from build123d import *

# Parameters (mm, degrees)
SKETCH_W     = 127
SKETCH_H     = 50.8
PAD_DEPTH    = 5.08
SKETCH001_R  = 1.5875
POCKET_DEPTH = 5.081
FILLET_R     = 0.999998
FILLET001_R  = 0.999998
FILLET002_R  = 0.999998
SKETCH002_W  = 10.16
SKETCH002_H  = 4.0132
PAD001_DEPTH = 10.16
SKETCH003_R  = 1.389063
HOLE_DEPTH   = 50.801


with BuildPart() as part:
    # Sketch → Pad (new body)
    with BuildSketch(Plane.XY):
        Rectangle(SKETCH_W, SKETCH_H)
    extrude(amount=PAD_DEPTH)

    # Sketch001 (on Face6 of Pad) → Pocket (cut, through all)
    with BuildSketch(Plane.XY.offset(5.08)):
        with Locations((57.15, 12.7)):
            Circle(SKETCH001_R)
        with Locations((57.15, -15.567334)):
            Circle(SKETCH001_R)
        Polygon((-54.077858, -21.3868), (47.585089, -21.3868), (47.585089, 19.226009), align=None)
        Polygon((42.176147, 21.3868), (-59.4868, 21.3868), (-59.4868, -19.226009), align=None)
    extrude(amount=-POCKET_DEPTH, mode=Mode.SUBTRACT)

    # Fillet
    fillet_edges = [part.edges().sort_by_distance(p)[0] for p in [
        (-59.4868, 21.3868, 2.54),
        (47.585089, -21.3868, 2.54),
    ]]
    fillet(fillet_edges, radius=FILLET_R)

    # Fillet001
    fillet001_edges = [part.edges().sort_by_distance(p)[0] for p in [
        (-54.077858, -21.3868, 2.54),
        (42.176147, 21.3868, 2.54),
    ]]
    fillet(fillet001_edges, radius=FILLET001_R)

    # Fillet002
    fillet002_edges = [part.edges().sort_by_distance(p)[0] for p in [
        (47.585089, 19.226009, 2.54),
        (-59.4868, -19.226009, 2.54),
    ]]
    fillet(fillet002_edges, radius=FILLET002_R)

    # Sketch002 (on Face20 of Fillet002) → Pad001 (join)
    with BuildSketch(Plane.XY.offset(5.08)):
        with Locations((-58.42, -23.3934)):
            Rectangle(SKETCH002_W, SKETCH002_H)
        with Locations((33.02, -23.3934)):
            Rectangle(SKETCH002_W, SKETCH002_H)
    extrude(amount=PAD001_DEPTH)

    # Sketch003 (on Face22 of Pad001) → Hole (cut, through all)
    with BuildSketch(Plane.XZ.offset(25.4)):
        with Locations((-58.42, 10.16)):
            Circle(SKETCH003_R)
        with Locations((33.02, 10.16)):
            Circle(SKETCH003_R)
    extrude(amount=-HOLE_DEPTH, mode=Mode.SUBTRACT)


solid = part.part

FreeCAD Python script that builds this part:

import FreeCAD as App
import Part
import Sketcher

V = App.Vector
Q = App.Units.Quantity


def edges_at(feature, points):
    """Names of the edges that pass closest to the given points."""
    edges = feature.Shape.Edges
    near = lambda p: min(range(len(edges)), key=lambda i: edges[i].distToShape(Part.Vertex(*p))[0])
    return sorted({f"Edge{near(p) + 1}" for p in points})

doc = App.newDocument("Part")
params = doc.addObject("Spreadsheet::Sheet", "Params")
for row, (alias, value) in enumerate([
    ("sketch1_width", "5 in"),
    ("sketch1_height", "2 in"),
    ("pad1_length", "0.2 in"),
    ("sketch2_diameter", "0.125 in"),
    ("fillet_radius", "0.999998 mm"),
    ("fillet2_radius", "0.999998 mm"),
    ("fillet3_radius", "0.999998 mm"),
    ("sketch3_width", "0.4 in"),
    ("sketch3_height", "0.158 in"),
    ("pad2_length", "0.4 in"),
    ("sketch4_diameter", "0.109375 in"),
], start=1):
    params.set(f"A{row}", alias)
    params.set(f"B{row}", "=" + value)
    params.setAlias(f"B{row}", alias)

body = doc.addObject("PartDesign::Body", "Body")

# Sketch on XY plane
sketch1 = doc.addObject("Sketcher::SketchObject", "Sketch")
body.addObject(sketch1)
sketch1.AttachmentSupport = (doc.XY_Plane, [""])
sketch1.MapMode = "FlatFace"
sketch1.addGeometry([
    Part.LineSegment(V(-64, 25, 0), V(-64, -25, 0)),
    Part.LineSegment(V(-64, -25, 0), V(64, -25, 0)),
    Part.LineSegment(V(64, -25, 0), V(64, 25, 0)),
    Part.LineSegment(V(64, 25, 0), V(-64, 25, 0)),
], False)
sketch1.addConstraint([
    Sketcher.Constraint("Coincident", 0, 2, 1, 1),
    Sketcher.Constraint("Coincident", 1, 2, 2, 1),
    Sketcher.Constraint("Coincident", 2, 2, 3, 1),
    Sketcher.Constraint("Coincident", 3, 2, 0, 1),
    Sketcher.Constraint("Vertical", 0),
    Sketcher.Constraint("Horizontal", 1),
    Sketcher.Constraint("Vertical", 2),
    Sketcher.Constraint("Horizontal", 3),
    Sketcher.Constraint("Symmetric", 0, 2, 2, 2, -1, 1),
    Sketcher.Constraint("DistanceX", 1, 1, 1, 2, Q("5 in")),
    Sketcher.Constraint("DistanceY", 0, 2, 0, 1, Q("2 in")),
])
sketch1.setExpression("Constraints[9]", "Params.sketch1_width")
sketch1.setExpression("Constraints[10]", "Params.sketch1_height")
pad1 = doc.addObject("PartDesign::Pad", "Pad")
body.addObject(pad1)
pad1.Profile = sketch1
pad1.setExpression("Length", "Params.pad1_length")

# Sketch on XY plane
sketch2 = doc.addObject("Sketcher::SketchObject", "Sketch001")
body.addObject(sketch2)
sketch2.AttachmentSupport = (doc.XY_Plane, [""])
sketch2.MapMode = "FlatFace"
sketch2.AttachmentOffset = App.Placement(V(0, 0, 0.2 * 25.4), App.Rotation())
sketch2.addGeometry([
    Part.Circle(V(57.1, 12.7, 0), V(0, 0, 1), 1.6),  # 0
    Part.Circle(V(57.1, -15.6, 0), V(0, 0, 1), 1.6),  # 1
    Part.LineSegment(V(-54.1, -21.4, 0), V(47.6, -21.4, 0)),  # 2
    Part.LineSegment(V(47.6, -21.4, 0), V(47.6, 19.2, 0)),  # 3
    Part.LineSegment(V(47.6, 19.2, 0), V(-54.1, -21.4, 0)),  # 4
    Part.LineSegment(V(42.2, 21.4, 0), V(-59.5, 21.4, 0)),  # 5
    Part.LineSegment(V(-59.5, 21.4, 0), V(-59.5, -19.2, 0)),  # 6
    Part.LineSegment(V(-59.5, -19.2, 0), V(42.2, 21.4, 0)),  # 7
], False)
sketch2.addConstraint([
    Sketcher.Constraint("Coincident", 2, 2, 3, 1),
    Sketcher.Constraint("Coincident", 3, 2, 4, 1),
    Sketcher.Constraint("Coincident", 4, 2, 2, 1),
    Sketcher.Constraint("Coincident", 5, 2, 6, 1),
    Sketcher.Constraint("Coincident", 6, 2, 7, 1),
    Sketcher.Constraint("Coincident", 7, 2, 5, 1),
    Sketcher.Constraint("Horizontal", 2),
    Sketcher.Constraint("Vertical", 3),
    Sketcher.Constraint("Horizontal", 5),
    Sketcher.Constraint("Vertical", 6),
    Sketcher.Constraint("Equal", 0, 1),
    Sketcher.Constraint("Parallel", 4, 7),
    Sketcher.Constraint("Vertical", 0, 3, 1, 3),
    Sketcher.Constraint("Equal", 2, 5),
    Sketcher.Constraint("Diameter", 0, Q("0.125 in")),
    Sketcher.Constraint("DistanceY", -1, 1, 0, 3, Q("0.5 in")),
    Sketcher.Constraint("DistanceX", -1, 1, 0, 3, Q("2.25 in")),
    Sketcher.Constraint("DistanceY", 2, 2, -1, 1, Q("0.842 in")),
    Sketcher.Constraint("DistanceX", 5, 2, -1, 1, Q("2.342 in")),
    Sketcher.Constraint("DistanceY", -1, 1, 5, 2, Q("0.842 in")),
    Sketcher.Constraint("DistanceY", 3, 1, 3, 2, Q("40.612809 mm")),
    Sketcher.Constraint("DistanceX", 2, 1, 2, 2, Q("101.662947 mm")),
    Sketcher.Constraint("DistanceX", -1, 1, 2, 2, Q("47.585089 mm")),
    Sketcher.Constraint("DistanceY", 1, 3, -1, 1, Q("15.567334 mm")),
])
sketch2.setExpression("Constraints[14]", "Params.sketch2_diameter")
pocket1 = doc.addObject("PartDesign::Pocket", "Pocket")
body.addObject(pocket1)
pocket1.Profile = sketch2
pocket1.Type = "ThroughAll"
doc.recompute()

fillet = doc.addObject("PartDesign::Fillet", "Fillet")
body.addObject(fillet)
fillet.Base = (pocket1, edges_at(pocket1, [(-59.487, 21.387, 2.54), (47.585, -21.387, 2.54)]))
fillet.setExpression("Radius", "Params.fillet_radius")
doc.recompute()

fillet2 = doc.addObject("PartDesign::Fillet", "Fillet001")
body.addObject(fillet2)
fillet2.Base = (fillet, edges_at(fillet, [(-54.078, -21.387, 2.54), (42.176, 21.387, 2.54)]))
fillet2.setExpression("Radius", "Params.fillet2_radius")
doc.recompute()

fillet3 = doc.addObject("PartDesign::Fillet", "Fillet002")
body.addObject(fillet3)
fillet3.Base = (fillet2, edges_at(fillet2, [(47.585, 19.226, 2.54), (-59.487, -19.226, 2.54)]))
fillet3.setExpression("Radius", "Params.fillet3_radius")

# Sketch on XY plane
sketch3 = doc.addObject("Sketcher::SketchObject", "Sketch002")
body.addObject(sketch3)
sketch3.AttachmentSupport = (doc.XY_Plane, [""])
sketch3.MapMode = "FlatFace"
sketch3.AttachmentOffset = App.Placement(V(0, 0, 0.2 * 25.4), App.Rotation())
sketch3.addGeometry([
    Part.LineSegment(V(-63.5, -21.4, 0), V(-63.5, -25.4, 0)),  # 0
    Part.LineSegment(V(-63.5, -25.4, 0), V(-53.3, -25.4, 0)),  # 1
    Part.LineSegment(V(-53.3, -25.4, 0), V(-53.3, -21.4, 0)),  # 2
    Part.LineSegment(V(-53.3, -21.4, 0), V(-63.5, -21.4, 0)),  # 3
    Part.LineSegment(V(27.9, -21.4, 0), V(27.9, -25.4, 0)),  # 4
    Part.LineSegment(V(27.9, -25.4, 0), V(38.1, -25.4, 0)),  # 5
    Part.LineSegment(V(38.1, -25.4, 0), V(38.1, -21.4, 0)),  # 6
    Part.LineSegment(V(38.1, -21.4, 0), V(27.9, -21.4, 0)),  # 7
], False)
sketch3.addConstraint([
    Sketcher.Constraint("Coincident", 0, 2, 1, 1),
    Sketcher.Constraint("Coincident", 1, 2, 2, 1),
    Sketcher.Constraint("Coincident", 2, 2, 3, 1),
    Sketcher.Constraint("Coincident", 3, 2, 0, 1),
    Sketcher.Constraint("Coincident", 4, 2, 5, 1),
    Sketcher.Constraint("Coincident", 5, 2, 6, 1),
    Sketcher.Constraint("Coincident", 6, 2, 7, 1),
    Sketcher.Constraint("Coincident", 7, 2, 4, 1),
    Sketcher.Constraint("Vertical", 0),
    Sketcher.Constraint("Horizontal", 1),
    Sketcher.Constraint("Vertical", 2),
    Sketcher.Constraint("Horizontal", 3),
    Sketcher.Constraint("Vertical", 4),
    Sketcher.Constraint("Horizontal", 5),
    Sketcher.Constraint("Vertical", 6),
    Sketcher.Constraint("Horizontal", 7),
    Sketcher.Constraint("Horizontal", 1, 2, 4, 2),
    Sketcher.Constraint("Horizontal", 3, 2, 6, 2),
    Sketcher.Constraint("Equal", 3, 5),
    Sketcher.Constraint("DistanceX", 1, 1, 1, 2, Q("0.4 in")),
    Sketcher.Constraint("DistanceY", 0, 2, -1, 1, Q("1 in")),
    Sketcher.Constraint("DistanceX", 0, 2, 5, 2, Q("4 in")),
    Sketcher.Constraint("DistanceX", 0, 2, -1, 1, Q("2.5 in")),
    Sketcher.Constraint("DistanceY", 0, 2, 0, 1, Q("0.158 in")),
])
sketch3.setExpression("Constraints[19]", "Params.sketch3_width")
sketch3.setExpression("Constraints[23]", "Params.sketch3_height")
pad2 = doc.addObject("PartDesign::Pad", "Pad001")
body.addObject(pad2)
pad2.Profile = sketch3
pad2.setExpression("Length", "Params.pad2_length")

# Sketch on XZ plane
sketch4 = doc.addObject("Sketcher::SketchObject", "Sketch003")
body.addObject(sketch4)
sketch4.AttachmentSupport = (doc.XZ_Plane, [""])
sketch4.MapMode = "FlatFace"
sketch4.AttachmentOffset = App.Placement(V(0, 0, 1 * 25.4), App.Rotation())
sketch4.addGeometry([
    Part.Circle(V(-58.4, 10.2, 0), V(0, 0, 1), 1.4),
    Part.Circle(V(33, 10.2, 0), V(0, 0, 1), 1.4),
], False)
sketch4.addConstraint([
    Sketcher.Constraint("Equal", 0, 1),
    Sketcher.Constraint("Horizontal", 0, 3, 1, 3),
    Sketcher.Constraint("Diameter", 0, Q("0.109375 in")),
    Sketcher.Constraint("DistanceX", 0, 3, -1, 1, Q("2.3 in")),
    Sketcher.Constraint("DistanceY", -1, 1, 0, 3, Q("0.4 in")),
    Sketcher.Constraint("DistanceX", -1, 1, 1, 3, Q("1.3 in")),
])
sketch4.setExpression("Constraints[2]", "Params.sketch4_diameter")
pocket2 = doc.addObject("PartDesign::Pocket", "Pocket001")
body.addObject(pocket2)
pocket2.Profile = sketch4
pocket2.Type = "ThroughAll"

doc.recompute()
